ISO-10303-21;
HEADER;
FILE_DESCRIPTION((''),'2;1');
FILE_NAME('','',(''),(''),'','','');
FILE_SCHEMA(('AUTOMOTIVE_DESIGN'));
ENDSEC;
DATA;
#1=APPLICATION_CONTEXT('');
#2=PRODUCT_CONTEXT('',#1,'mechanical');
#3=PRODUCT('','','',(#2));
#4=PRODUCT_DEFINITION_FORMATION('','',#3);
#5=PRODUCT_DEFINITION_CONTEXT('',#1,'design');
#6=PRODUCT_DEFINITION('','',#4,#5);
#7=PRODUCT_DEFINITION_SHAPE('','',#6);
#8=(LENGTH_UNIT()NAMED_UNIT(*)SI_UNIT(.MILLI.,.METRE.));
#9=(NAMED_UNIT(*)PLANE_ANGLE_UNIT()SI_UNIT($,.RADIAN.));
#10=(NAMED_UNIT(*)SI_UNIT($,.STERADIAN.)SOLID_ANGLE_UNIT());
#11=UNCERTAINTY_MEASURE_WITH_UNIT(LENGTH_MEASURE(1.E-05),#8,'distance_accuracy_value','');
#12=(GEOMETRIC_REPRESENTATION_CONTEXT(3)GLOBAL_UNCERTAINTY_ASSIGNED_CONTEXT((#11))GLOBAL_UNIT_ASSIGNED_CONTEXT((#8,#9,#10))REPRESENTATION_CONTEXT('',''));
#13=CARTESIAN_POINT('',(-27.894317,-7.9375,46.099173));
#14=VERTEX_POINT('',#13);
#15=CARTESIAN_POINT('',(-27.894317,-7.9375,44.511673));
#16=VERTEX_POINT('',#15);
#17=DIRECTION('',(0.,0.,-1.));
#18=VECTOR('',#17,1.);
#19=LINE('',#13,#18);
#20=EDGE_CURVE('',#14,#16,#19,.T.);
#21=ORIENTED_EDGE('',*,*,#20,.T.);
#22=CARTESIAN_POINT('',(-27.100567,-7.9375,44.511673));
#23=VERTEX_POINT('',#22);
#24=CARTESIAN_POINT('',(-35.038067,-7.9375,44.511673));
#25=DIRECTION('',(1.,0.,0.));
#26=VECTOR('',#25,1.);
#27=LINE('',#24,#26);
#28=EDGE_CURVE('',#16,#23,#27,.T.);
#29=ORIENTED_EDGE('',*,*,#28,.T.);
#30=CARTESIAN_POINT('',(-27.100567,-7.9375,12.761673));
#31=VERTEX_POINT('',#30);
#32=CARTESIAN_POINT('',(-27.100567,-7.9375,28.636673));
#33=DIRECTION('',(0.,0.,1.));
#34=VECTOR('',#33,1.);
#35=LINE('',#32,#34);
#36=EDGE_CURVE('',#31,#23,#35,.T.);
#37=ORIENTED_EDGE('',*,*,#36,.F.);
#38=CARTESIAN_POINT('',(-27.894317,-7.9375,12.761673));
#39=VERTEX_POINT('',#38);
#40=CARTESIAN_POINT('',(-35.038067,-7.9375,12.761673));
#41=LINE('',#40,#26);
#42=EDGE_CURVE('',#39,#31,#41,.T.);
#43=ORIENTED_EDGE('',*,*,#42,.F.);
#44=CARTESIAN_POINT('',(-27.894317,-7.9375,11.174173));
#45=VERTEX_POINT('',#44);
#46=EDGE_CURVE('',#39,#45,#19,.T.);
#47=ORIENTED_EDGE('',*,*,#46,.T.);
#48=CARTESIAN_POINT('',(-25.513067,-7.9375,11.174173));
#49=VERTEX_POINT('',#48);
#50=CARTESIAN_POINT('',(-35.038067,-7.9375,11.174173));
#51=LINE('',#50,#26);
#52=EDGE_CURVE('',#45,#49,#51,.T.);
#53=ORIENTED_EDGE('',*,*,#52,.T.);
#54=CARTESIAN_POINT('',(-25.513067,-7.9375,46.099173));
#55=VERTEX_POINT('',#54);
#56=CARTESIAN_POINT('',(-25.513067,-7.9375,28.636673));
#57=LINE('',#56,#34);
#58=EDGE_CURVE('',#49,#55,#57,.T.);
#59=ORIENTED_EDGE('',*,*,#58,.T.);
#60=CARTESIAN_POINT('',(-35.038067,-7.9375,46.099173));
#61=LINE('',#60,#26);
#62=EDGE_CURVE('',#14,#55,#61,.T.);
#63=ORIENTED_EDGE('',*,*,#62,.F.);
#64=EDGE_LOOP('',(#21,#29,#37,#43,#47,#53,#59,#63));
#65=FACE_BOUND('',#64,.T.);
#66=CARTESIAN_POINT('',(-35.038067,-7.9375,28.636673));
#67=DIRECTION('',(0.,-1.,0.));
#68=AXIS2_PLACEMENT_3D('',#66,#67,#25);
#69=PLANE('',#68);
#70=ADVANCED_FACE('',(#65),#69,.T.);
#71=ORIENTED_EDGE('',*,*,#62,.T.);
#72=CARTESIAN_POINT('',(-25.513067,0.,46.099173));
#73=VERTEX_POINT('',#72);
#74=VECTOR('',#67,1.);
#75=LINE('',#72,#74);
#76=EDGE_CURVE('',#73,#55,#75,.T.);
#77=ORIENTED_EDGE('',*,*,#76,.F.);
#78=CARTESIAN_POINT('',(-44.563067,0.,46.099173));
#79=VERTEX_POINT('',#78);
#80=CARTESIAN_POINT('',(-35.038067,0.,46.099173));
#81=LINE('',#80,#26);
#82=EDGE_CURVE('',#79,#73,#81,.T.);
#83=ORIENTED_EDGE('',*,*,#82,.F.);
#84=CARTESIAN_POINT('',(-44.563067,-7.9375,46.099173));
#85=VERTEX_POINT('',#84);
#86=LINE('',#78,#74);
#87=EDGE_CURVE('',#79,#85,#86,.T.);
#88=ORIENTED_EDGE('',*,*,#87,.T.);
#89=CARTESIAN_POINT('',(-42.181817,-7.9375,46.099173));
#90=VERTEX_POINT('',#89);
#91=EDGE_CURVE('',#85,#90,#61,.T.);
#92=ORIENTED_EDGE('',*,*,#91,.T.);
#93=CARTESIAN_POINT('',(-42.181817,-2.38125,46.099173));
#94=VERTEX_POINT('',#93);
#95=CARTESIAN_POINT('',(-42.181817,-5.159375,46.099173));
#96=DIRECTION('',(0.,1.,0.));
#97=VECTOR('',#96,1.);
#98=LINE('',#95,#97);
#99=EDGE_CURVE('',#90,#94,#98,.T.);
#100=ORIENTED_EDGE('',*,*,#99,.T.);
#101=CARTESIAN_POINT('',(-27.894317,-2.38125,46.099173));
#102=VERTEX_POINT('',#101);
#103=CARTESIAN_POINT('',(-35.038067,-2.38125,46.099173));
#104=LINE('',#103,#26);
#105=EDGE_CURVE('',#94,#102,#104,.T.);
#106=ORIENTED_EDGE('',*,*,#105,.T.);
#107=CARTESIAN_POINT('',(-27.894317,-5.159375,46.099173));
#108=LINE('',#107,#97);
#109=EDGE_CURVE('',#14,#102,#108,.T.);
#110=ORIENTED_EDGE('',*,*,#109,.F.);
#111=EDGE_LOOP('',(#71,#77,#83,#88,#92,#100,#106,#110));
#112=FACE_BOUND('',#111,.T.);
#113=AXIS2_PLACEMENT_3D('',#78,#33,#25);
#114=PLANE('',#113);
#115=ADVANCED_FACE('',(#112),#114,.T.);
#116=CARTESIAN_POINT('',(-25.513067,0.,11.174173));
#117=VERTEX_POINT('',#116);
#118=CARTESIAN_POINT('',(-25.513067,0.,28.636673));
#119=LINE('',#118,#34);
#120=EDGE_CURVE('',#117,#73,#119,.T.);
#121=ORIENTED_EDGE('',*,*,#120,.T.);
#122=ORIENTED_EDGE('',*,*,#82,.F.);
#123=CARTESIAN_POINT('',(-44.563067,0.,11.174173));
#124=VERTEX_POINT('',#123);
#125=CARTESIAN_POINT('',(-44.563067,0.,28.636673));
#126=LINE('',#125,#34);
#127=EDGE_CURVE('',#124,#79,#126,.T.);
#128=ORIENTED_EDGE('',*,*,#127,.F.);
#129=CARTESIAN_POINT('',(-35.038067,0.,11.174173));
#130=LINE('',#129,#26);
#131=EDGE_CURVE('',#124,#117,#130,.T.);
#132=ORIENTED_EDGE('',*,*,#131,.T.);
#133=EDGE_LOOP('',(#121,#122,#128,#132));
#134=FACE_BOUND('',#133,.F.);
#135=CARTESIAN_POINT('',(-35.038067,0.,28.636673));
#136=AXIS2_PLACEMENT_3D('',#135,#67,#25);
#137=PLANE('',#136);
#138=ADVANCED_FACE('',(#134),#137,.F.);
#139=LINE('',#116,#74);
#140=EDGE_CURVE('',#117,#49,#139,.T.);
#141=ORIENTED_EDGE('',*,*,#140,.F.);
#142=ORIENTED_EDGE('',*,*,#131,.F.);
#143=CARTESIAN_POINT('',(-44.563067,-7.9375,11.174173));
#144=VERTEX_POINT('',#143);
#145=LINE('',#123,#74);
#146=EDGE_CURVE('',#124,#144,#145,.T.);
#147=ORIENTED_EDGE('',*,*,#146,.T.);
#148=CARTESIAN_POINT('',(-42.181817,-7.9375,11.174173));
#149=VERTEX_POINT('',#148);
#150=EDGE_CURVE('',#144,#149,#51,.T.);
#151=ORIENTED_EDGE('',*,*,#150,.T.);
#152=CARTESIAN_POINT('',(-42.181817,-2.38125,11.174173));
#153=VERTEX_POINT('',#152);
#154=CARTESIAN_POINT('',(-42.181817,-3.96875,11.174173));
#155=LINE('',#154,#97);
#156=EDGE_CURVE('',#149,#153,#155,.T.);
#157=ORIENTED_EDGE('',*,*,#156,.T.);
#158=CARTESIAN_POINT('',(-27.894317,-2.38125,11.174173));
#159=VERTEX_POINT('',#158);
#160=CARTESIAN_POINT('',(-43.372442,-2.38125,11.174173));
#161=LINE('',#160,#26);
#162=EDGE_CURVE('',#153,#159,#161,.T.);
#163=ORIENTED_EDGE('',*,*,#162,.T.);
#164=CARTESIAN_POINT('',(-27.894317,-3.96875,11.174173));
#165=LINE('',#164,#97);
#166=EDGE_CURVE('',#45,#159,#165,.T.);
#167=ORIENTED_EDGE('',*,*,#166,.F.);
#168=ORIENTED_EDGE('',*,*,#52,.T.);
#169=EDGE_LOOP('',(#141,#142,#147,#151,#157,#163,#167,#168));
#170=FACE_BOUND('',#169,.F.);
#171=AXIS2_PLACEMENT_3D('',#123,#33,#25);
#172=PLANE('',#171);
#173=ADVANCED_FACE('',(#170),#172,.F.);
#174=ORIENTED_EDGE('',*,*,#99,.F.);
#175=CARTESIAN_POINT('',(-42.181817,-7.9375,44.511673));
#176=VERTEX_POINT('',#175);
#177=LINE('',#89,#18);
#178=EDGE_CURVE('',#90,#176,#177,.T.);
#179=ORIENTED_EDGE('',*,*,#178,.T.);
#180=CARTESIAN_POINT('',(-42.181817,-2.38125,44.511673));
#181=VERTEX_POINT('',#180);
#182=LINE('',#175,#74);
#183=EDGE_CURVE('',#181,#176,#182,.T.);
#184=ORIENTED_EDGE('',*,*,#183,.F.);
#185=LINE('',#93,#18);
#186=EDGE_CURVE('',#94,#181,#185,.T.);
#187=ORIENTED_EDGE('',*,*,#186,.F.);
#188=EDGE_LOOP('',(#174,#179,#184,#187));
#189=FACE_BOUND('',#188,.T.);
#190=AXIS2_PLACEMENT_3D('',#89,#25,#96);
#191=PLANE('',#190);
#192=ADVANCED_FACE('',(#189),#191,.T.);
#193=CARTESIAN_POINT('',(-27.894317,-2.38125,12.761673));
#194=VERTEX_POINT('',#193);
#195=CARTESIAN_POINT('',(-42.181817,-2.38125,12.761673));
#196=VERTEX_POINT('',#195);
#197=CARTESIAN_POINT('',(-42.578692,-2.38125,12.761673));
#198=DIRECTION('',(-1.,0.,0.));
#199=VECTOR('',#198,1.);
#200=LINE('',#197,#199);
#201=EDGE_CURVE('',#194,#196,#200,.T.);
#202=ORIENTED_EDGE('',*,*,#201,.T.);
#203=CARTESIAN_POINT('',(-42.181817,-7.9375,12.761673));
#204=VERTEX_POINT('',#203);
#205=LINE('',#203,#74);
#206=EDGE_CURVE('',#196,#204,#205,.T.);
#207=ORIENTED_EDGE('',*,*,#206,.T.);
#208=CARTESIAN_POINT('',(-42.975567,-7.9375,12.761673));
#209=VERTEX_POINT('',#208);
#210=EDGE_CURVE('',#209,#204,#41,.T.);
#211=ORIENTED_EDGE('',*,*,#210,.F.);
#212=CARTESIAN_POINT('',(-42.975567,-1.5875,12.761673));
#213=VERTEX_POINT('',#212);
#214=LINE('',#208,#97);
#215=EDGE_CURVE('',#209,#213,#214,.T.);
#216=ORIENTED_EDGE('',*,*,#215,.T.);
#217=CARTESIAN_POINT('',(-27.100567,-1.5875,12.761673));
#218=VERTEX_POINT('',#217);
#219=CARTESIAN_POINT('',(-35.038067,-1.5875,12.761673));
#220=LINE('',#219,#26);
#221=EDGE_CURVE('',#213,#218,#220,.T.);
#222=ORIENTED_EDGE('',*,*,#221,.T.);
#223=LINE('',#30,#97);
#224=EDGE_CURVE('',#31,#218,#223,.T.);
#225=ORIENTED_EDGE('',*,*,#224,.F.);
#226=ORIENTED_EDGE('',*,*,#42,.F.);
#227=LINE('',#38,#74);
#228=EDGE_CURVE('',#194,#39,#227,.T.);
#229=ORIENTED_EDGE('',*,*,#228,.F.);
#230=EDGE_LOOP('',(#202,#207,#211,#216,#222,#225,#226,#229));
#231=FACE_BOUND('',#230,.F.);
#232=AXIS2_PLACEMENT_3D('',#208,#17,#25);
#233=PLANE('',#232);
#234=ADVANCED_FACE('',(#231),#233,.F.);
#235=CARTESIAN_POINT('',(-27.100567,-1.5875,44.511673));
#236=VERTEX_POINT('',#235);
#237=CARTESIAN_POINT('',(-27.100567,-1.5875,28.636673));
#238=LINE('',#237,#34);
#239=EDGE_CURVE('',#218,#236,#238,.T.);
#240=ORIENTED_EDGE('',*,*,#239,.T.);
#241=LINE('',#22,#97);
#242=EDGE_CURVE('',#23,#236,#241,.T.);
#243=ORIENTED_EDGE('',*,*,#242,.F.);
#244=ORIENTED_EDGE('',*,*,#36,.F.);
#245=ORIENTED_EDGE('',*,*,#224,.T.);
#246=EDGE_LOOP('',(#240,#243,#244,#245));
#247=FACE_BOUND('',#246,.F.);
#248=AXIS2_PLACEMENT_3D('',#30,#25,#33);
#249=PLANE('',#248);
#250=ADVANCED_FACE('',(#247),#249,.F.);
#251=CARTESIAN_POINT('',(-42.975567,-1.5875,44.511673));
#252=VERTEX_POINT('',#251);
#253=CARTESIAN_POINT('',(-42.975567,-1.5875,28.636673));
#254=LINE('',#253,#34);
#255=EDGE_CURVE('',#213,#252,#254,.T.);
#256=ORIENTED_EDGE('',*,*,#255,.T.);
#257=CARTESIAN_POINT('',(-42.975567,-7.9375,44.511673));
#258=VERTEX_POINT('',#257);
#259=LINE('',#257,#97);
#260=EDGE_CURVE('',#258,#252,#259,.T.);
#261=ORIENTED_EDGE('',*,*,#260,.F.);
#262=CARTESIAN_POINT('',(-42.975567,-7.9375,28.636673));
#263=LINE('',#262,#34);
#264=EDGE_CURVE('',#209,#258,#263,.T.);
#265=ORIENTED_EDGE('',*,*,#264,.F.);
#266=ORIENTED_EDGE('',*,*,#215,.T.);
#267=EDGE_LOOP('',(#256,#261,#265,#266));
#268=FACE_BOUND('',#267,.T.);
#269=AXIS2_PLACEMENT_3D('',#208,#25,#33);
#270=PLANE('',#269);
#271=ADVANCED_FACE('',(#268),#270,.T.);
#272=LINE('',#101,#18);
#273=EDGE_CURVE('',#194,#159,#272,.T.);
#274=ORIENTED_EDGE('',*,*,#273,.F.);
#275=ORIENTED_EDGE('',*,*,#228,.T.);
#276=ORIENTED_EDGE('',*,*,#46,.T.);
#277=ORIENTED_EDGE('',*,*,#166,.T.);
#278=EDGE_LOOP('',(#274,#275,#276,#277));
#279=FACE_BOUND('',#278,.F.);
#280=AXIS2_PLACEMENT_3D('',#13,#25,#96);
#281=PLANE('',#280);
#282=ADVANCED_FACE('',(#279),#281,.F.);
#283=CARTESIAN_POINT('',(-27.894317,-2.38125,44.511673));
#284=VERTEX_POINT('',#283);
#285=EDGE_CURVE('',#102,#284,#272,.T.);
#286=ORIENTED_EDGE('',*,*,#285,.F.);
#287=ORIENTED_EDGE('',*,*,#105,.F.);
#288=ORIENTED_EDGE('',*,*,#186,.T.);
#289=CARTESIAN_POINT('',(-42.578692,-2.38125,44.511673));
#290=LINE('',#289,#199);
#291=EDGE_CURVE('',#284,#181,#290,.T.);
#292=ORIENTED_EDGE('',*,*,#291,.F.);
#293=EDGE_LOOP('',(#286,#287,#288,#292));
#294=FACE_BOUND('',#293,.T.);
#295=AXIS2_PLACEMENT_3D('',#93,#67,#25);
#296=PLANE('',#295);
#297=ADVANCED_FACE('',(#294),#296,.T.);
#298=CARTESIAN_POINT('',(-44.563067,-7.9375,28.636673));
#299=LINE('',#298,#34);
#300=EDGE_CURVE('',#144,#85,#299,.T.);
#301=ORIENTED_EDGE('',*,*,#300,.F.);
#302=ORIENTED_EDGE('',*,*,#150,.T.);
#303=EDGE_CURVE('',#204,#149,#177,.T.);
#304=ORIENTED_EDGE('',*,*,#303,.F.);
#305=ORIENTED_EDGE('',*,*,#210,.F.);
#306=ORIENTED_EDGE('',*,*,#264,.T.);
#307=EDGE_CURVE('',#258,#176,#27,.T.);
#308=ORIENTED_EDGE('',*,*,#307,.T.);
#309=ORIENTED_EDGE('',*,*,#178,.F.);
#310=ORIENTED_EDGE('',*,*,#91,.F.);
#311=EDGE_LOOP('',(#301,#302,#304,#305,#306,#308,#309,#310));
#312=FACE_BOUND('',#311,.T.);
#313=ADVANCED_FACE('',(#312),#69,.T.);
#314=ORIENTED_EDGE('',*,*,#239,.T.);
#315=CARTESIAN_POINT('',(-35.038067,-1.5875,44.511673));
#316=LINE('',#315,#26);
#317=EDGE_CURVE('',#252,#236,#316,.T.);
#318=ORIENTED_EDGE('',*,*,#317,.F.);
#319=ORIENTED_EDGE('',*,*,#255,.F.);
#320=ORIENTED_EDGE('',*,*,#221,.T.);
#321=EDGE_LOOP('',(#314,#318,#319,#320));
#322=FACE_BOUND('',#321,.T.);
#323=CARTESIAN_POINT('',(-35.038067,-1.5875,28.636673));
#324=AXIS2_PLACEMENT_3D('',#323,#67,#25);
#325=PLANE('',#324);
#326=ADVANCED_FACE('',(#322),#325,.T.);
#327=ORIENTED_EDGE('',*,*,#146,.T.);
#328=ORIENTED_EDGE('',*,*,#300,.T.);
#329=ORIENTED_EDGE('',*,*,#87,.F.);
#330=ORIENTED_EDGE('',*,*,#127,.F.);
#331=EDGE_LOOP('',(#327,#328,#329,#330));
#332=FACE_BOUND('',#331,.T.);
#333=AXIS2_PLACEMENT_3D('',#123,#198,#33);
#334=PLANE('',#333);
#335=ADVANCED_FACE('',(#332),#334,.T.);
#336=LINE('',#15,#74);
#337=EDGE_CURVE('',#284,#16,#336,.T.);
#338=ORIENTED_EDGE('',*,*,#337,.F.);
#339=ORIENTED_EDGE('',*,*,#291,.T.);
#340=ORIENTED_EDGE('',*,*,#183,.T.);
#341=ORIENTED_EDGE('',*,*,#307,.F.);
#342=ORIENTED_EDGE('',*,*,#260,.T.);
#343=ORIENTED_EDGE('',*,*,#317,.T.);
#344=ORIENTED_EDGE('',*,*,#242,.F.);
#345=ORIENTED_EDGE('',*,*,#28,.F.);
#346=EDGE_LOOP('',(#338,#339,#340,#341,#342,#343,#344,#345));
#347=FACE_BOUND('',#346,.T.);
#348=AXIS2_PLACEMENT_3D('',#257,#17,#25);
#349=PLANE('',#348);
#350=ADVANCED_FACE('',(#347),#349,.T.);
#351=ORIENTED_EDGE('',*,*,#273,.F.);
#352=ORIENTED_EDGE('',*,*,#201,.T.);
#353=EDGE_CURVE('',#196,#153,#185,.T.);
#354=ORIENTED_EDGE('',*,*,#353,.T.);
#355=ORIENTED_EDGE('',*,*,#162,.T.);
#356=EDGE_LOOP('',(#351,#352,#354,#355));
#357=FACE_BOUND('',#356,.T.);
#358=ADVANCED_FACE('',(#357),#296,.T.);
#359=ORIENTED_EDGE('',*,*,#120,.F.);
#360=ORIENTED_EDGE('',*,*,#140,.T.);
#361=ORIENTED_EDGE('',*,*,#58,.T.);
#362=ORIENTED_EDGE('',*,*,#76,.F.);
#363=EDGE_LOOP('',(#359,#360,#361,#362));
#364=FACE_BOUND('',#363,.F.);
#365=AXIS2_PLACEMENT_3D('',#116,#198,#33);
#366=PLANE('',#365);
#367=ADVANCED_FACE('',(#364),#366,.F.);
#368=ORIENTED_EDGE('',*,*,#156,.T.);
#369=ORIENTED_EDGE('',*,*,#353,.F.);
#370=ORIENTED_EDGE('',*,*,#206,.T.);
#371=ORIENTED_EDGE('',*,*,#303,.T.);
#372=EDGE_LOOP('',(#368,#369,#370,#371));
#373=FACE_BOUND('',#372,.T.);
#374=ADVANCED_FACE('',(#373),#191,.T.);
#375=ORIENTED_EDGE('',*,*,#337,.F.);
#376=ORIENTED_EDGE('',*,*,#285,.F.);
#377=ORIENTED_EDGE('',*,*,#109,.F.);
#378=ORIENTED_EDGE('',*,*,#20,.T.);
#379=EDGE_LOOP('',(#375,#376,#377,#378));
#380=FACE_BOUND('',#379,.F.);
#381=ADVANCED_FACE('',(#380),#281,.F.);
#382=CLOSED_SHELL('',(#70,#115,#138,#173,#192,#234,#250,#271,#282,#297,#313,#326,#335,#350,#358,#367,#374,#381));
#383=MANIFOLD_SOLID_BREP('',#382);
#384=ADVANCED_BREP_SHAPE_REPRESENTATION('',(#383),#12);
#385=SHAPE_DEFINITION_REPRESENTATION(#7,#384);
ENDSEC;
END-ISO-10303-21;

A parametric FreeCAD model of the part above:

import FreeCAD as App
import Part
import Sketcher
from FreeCAD import Vector
Q = App.Units.Quantity

doc = App.newDocument("Part")
body = doc.addObject("PartDesign::Body", "Body")

# Sketch on XZ plane
sketch1 = body.newObject("Sketcher::SketchObject", "Sketch")
sketch1.AttachmentSupport = (doc.getObject("XZ_Plane"), [""])
sketch1.MapMode = "FlatFace"
sketch1.addGeometry([
    Part.LineSegment(Vector(-44.563067, 46.099173, 0), Vector(-44.563067, 11.174173, 0)),
    Part.LineSegment(Vector(-44.563067, 11.174173, 0), Vector(-25.513067, 11.174173, 0)),
    Part.LineSegment(Vector(-25.513067, 11.174173, 0), Vector(-25.513067, 46.099173, 0)),
    Part.LineSegment(Vector(-25.513067, 46.099173, 0), Vector(-44.563067, 46.099173, 0)),
], False)
sketch1.addConstraint([
    Sketcher.Constraint("Coincident", 0, 2, 1, 1),
    Sketcher.Constraint("Coincident", 1, 2, 2, 1),
    Sketcher.Constraint("Coincident", 2, 2, 3, 1),
    Sketcher.Constraint("Coincident", 3, 2, 0, 1),
    Sketcher.Constraint("Vertical", 0),
    Sketcher.Constraint("Horizontal", 1),
    Sketcher.Constraint("Vertical", 2),
    Sketcher.Constraint("Horizontal", 3),
    Sketcher.Constraint("DistanceX", 1, 1, 1, 2, Q("0.75 in")),
    Sketcher.Constraint("DistanceY", 0, 2, 0, 1, Q("1.375 in")),
    Sketcher.Constraint("DistanceX", 0, 2, -1, 1, 44.563067),
    Sketcher.Constraint("DistanceY", -1, 1, 0, 2, 11.174173),
])
pad1 = body.newObject("PartDesign::Pad", "Pad")
pad1.Profile = sketch1
pad1.Length = Q("0.3125 in")

# Sketch on XZ plane
sketch2 = body.newObject("Sketcher::SketchObject", "Sketch001")
sketch2.AttachmentSupport = (doc.getObject("XZ_Plane"), [""])
sketch2.MapMode = "FlatFace"
sketch2.AttachmentOffset = App.Placement(Vector(0, 0, 0.3125 * 25.4), App.Rotation())
sketch2.addGeometry([
    Part.LineSegment(Vector(-42.975567, 44.511673, 0), Vector(-42.975567, 12.761673, 0)),
    Part.LineSegment(Vector(-42.975567, 12.761673, 0), Vector(-27.100567, 12.761673, 0)),
    Part.LineSegment(Vector(-27.100567, 12.761673, 0), Vector(-27.100567, 44.511673, 0)),
    Part.LineSegment(Vector(-27.100567, 44.511673, 0), Vector(-42.975567, 44.511673, 0)),
], False)
sketch2.addConstraint([
    Sketcher.Constraint("Coincident", 0, 2, 1, 1),
    Sketcher.Constraint("Coincident", 1, 2, 2, 1),
    Sketcher.Constraint("Coincident", 2, 2, 3, 1),
    Sketcher.Constraint("Coincident", 3, 2, 0, 1),
    Sketcher.Constraint("Vertical", 0),
    Sketcher.Constraint("Horizontal", 1),
    Sketcher.Constraint("Vertical", 2),
    Sketcher.Constraint("Horizontal", 3),
    Sketcher.Constraint("DistanceY", 0, 2, 0, 1, Q("1.25 in")),
    Sketcher.Constraint("DistanceX", 1, 1, 1, 2, Q("0.625 in")),
    Sketcher.Constraint("DistanceX", 0, 2, -1, 1, 42.975567),
    Sketcher.Constraint("DistanceY", -1, 1, 0, 2, 12.761673),
])
pocket1 = body.newObject("PartDesign::Pocket", "Pocket")
pocket1.Profile = sketch2
pocket1.Length = Q("0.25 in")

# Sketch on XY plane
sketch3 = body.newObject("Sketcher::SketchObject", "Sketch002")
sketch3.AttachmentSupport = (doc.getObject("XY_Plane"), [""])
sketch3.MapMode = "FlatFace"
sketch3.AttachmentOffset = App.Placement(Vector(0, 0, 46.099173), App.Rotation())
sketch3.addGeometry([
    Part.LineSegment(Vector(-42.181817, -2.38125, 0), Vector(-42.181817, -7.9375, 0)),
    Part.LineSegment(Vector(-42.181817, -7.9375, 0), Vector(-27.894317, -7.9375, 0)),
    Part.LineSegment(Vector(-27.894317, -7.9375, 0), Vector(-27.894317, -2.38125, 0)),
    Part.LineSegment(Vector(-27.894317, -2.38125, 0), Vector(-42.181817, -2.38125, 0)),
], False)
sketch3.addConstraint([
    Sketcher.Constraint("Coincident", 0, 2, 1, 1),
    Sketcher.Constraint("Coincident", 1, 2, 2, 1),
    Sketcher.Constraint("Coincident", 2, 2, 3, 1),
    Sketcher.Constraint("Coincident", 3, 2, 0, 1),
    Sketcher.Constraint("Vertical", 0),
    Sketcher.Constraint("Horizontal", 1),
    Sketcher.Constraint("Vertical", 2),
    Sketcher.Constraint("Horizontal", 3),
    Sketcher.Constraint("DistanceX", 1, 1, 1, 2, Q("0.5625 in")),
    Sketcher.Constraint("DistanceY", 0, 2, 0, 1, Q("0.21875 in")),
    Sketcher.Constraint("DistanceY", 0, 2, -1, 1, Q("0.3125 in")),
    Sketcher.Constraint("DistanceX", 0, 2, -1, 1, 42.181817),
])
pocket2 = body.newObject("PartDesign::Pocket", "Pocket001")
pocket2.Profile = sketch3
pocket2.Type = "ThroughAll"

doc.recompute()
